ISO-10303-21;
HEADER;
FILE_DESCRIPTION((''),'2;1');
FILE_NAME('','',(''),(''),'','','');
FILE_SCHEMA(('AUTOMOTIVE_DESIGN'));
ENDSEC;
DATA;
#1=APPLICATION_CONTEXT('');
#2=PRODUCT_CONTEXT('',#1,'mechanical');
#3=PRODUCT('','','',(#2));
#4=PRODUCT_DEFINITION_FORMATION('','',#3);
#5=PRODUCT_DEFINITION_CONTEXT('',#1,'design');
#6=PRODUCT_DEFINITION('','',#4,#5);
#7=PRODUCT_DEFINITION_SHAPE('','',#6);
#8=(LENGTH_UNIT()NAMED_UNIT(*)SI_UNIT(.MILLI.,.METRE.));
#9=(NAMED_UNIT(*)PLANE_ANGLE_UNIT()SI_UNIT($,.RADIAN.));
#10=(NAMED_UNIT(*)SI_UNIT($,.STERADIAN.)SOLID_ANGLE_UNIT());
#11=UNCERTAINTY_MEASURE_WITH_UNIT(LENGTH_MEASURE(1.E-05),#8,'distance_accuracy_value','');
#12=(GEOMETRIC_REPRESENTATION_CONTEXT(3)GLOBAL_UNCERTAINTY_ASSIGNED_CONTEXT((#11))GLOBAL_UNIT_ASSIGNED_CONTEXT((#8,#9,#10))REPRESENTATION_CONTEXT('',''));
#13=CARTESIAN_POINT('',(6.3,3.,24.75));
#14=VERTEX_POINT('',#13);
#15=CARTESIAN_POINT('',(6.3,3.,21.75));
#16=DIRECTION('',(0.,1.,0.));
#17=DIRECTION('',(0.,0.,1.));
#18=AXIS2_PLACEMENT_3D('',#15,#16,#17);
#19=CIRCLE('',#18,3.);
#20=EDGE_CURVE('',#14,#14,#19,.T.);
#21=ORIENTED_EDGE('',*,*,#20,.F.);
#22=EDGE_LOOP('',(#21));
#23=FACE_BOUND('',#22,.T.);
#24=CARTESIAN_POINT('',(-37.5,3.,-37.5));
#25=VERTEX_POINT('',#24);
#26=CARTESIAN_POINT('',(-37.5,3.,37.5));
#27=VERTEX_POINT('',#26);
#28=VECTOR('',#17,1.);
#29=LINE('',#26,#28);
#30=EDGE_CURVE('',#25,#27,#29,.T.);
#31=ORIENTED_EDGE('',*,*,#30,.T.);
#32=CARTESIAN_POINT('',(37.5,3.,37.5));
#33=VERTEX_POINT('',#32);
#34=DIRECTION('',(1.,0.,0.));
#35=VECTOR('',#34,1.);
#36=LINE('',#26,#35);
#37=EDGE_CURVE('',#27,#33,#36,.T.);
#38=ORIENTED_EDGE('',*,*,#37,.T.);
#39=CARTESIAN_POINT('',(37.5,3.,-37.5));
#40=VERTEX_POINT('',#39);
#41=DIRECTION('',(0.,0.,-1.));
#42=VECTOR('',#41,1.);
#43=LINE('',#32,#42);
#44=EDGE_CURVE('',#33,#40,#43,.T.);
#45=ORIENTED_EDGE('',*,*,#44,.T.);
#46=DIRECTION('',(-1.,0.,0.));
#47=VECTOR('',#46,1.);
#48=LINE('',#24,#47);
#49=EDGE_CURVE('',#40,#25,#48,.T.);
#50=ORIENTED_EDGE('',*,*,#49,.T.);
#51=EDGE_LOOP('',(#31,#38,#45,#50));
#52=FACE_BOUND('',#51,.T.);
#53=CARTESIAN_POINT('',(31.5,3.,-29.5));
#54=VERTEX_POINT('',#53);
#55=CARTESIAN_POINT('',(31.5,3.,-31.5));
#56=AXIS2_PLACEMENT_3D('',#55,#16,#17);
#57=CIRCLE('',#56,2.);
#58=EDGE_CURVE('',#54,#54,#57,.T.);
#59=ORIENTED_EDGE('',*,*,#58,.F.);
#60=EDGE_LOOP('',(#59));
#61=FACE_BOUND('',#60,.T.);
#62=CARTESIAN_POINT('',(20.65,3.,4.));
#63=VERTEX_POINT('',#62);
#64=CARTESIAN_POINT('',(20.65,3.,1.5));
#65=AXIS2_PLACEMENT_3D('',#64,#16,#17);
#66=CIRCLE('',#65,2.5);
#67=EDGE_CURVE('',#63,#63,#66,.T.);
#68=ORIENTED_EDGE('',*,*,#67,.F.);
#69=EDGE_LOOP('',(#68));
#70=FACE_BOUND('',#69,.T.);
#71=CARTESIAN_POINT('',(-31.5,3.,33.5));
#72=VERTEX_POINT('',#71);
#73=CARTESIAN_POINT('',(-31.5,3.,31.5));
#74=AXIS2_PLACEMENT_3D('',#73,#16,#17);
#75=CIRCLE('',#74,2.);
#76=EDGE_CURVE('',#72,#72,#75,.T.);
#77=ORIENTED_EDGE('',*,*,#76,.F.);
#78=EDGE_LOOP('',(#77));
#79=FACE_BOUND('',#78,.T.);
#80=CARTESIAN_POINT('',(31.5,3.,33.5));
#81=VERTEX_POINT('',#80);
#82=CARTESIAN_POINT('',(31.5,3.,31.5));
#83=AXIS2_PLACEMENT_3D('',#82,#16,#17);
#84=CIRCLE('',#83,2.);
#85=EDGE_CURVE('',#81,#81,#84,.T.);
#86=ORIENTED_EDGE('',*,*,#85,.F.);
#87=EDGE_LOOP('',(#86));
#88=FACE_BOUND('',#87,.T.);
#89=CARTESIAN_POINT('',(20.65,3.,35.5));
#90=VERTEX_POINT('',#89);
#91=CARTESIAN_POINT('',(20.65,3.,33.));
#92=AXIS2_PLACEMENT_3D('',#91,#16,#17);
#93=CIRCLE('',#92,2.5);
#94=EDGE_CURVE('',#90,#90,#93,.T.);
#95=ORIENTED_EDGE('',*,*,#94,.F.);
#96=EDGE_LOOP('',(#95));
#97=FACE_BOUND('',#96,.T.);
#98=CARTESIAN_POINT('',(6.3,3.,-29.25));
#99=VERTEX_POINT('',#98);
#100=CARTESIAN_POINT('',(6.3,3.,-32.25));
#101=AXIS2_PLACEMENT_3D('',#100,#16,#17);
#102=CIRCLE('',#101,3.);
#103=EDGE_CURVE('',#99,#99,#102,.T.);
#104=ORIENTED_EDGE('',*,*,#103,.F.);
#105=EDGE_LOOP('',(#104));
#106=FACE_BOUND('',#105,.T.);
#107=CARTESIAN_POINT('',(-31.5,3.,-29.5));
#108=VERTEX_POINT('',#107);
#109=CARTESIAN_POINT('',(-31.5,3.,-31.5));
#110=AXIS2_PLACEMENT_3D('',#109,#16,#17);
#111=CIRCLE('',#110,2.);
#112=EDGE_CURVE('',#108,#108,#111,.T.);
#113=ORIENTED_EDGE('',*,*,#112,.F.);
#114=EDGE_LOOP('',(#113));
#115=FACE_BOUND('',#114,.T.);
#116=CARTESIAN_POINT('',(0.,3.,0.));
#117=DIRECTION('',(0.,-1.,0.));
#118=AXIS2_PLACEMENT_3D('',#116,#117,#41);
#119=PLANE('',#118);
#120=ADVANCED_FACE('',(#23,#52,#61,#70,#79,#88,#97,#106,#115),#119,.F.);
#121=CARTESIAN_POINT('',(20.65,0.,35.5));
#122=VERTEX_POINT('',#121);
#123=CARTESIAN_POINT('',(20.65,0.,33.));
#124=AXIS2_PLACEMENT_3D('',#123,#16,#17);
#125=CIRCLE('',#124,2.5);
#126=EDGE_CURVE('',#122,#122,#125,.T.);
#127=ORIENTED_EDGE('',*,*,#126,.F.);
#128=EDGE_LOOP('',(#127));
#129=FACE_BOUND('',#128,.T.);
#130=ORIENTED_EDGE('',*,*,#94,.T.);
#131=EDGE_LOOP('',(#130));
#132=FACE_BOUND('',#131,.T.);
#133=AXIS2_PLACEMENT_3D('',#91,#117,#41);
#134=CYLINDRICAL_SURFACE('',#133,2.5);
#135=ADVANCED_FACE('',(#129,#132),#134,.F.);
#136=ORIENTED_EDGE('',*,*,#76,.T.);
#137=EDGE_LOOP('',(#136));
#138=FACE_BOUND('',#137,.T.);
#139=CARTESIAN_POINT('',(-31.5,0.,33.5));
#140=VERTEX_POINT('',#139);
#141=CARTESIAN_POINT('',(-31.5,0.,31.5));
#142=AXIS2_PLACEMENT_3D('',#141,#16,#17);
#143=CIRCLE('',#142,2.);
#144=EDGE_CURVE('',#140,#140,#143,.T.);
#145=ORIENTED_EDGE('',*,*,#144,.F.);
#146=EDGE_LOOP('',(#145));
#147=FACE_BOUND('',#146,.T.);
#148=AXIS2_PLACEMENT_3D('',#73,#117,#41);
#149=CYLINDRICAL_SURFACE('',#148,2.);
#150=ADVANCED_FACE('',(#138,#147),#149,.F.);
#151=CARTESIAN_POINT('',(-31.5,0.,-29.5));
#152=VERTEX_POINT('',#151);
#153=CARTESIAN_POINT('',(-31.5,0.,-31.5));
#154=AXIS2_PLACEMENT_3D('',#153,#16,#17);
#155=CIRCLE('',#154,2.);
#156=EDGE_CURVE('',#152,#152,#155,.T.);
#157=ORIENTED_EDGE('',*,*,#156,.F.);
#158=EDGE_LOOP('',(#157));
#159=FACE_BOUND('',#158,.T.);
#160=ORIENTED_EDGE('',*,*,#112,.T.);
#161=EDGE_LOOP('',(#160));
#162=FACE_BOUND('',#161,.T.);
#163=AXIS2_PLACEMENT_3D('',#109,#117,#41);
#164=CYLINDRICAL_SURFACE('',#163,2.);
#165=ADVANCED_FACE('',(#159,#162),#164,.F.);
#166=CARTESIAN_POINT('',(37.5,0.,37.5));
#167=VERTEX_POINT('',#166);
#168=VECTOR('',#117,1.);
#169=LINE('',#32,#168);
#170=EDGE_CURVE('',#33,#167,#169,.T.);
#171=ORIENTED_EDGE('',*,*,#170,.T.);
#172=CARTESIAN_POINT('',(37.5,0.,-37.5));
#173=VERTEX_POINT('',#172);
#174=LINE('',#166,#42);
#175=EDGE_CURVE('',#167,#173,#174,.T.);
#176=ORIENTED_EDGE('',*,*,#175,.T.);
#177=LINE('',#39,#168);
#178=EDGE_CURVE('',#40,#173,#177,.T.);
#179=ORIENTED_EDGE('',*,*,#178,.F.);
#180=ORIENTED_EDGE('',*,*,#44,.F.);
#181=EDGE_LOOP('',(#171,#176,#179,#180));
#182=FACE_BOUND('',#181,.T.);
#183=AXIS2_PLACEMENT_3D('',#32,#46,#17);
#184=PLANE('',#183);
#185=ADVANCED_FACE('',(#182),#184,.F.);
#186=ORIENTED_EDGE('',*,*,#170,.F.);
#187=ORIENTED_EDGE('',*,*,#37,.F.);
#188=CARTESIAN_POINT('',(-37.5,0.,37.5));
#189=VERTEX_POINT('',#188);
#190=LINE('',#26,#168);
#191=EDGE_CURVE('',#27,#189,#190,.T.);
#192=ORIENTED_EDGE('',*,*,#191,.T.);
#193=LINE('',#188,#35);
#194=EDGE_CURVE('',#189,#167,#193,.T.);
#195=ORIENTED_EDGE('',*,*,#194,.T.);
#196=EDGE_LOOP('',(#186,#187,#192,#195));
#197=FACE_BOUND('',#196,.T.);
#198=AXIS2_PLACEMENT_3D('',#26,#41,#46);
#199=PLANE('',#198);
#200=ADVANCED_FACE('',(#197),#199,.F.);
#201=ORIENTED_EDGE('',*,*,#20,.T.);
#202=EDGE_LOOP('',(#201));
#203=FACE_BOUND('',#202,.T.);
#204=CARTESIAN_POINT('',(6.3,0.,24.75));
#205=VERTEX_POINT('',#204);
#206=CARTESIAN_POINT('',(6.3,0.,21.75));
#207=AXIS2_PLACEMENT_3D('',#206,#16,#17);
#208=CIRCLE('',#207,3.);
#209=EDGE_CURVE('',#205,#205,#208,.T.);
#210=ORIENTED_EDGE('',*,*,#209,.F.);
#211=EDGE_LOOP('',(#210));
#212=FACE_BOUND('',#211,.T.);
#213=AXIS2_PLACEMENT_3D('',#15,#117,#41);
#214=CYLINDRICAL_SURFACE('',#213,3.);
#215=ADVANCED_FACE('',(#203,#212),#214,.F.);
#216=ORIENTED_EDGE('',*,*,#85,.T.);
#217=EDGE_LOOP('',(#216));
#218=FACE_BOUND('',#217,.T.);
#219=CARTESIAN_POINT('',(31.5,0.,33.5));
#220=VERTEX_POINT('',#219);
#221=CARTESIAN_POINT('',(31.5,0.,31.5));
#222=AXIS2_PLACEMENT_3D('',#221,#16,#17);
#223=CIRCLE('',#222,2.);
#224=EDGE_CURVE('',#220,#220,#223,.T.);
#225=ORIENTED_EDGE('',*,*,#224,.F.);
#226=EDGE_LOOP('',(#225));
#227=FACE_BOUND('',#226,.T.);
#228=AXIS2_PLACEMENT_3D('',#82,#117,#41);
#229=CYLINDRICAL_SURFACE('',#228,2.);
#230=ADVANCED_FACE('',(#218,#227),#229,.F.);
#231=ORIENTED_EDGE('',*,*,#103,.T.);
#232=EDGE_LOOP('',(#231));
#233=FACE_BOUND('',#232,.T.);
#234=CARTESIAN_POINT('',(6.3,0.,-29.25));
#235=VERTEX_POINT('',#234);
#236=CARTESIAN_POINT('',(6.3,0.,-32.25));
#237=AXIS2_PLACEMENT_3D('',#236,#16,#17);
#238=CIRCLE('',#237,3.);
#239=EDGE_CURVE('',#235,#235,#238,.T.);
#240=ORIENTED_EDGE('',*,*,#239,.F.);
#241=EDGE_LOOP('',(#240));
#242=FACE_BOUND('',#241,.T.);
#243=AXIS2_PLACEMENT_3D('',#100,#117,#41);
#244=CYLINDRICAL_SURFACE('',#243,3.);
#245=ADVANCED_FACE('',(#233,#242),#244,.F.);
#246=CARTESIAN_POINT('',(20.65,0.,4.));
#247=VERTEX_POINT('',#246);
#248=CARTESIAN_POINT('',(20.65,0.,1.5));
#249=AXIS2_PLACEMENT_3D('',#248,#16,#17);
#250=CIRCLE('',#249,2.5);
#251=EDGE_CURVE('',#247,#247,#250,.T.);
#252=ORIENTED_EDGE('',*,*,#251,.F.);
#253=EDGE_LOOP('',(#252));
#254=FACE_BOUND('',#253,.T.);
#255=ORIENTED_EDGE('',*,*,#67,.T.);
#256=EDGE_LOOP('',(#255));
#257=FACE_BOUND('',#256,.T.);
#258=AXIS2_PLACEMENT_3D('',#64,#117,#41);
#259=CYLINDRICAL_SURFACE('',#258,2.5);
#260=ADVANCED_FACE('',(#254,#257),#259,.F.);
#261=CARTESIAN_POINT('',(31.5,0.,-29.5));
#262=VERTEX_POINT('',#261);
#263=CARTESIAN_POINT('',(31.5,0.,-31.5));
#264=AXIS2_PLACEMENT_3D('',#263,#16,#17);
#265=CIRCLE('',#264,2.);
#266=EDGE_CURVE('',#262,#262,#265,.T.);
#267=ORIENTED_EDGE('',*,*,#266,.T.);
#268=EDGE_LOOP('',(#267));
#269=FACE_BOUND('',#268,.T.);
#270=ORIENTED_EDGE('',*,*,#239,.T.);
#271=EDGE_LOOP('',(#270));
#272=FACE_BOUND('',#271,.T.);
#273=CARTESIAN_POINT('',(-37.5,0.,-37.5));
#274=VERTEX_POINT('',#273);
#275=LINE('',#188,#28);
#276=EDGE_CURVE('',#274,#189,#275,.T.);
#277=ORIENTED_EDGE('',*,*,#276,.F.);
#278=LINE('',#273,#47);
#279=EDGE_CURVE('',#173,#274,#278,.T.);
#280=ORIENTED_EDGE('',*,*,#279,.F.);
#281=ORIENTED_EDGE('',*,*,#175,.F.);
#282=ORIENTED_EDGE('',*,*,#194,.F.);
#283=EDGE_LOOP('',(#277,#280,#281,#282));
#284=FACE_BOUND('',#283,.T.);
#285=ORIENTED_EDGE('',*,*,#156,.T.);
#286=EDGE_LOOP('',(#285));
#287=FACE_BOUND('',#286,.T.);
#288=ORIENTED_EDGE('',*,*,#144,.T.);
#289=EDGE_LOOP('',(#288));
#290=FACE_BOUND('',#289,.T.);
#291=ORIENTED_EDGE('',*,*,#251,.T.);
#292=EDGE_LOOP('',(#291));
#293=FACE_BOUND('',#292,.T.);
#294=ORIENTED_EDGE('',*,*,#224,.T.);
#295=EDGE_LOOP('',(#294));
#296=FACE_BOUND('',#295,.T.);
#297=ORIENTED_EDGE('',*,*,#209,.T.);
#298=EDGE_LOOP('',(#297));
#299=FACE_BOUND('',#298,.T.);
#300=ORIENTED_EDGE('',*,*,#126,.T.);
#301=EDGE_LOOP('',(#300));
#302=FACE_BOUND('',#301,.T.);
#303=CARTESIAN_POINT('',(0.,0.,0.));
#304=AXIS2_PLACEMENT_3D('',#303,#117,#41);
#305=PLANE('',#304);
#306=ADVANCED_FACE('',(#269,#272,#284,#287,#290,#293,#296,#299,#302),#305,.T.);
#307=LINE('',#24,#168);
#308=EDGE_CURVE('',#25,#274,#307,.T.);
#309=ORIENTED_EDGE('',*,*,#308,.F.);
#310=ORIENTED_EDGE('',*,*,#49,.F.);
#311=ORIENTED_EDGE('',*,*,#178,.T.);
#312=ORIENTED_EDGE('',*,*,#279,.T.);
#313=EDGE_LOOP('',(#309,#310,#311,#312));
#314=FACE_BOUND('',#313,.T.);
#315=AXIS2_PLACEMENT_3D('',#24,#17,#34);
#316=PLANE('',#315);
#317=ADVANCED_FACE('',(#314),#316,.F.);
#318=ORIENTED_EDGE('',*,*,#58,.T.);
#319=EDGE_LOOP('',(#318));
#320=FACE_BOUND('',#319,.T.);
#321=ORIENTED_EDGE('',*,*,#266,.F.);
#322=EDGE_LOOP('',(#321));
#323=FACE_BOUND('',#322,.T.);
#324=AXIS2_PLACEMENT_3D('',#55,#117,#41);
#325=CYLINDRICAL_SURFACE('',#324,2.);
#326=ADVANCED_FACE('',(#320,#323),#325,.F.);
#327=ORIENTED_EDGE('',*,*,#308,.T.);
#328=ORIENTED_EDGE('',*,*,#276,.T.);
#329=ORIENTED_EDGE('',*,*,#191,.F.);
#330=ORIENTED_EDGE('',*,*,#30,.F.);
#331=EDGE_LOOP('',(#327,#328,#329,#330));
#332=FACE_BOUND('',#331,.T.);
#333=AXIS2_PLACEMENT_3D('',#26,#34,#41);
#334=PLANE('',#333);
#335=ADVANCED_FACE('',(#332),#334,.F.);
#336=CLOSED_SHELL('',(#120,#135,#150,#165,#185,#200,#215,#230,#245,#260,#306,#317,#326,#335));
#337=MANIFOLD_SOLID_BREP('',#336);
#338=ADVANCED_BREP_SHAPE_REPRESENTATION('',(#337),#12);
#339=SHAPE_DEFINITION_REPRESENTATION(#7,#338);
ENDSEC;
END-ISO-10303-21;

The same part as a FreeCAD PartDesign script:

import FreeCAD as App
import Part
import Sketcher
from FreeCAD import Vector

doc = App.newDocument("Part")
body = doc.addObject("PartDesign::Body", "Body")

sketch1 = doc.addObject("Sketcher::SketchObject", "Sketch")
body.addObject(sketch1)
sketch1.AttachmentSupport = (doc.XZ_Plane, [""])
sketch1.MapMode = "FlatFace"
sketch1.addGeometry(Part.LineSegment(Vector(-37.5, -37.5, 0), Vector(-37.5, 37.5, 0)), False)
sketch1.addGeometry(Part.LineSegment(Vector(-37.5, 37.5, 0), Vector(37.5, 37.5, 0)), False)
sketch1.addGeometry(Part.LineSegment(Vector(37.5, 37.5, 0), Vector(37.5, -37.5, 0)), False)
sketch1.addGeometry(Part.LineSegment(Vector(37.5, -37.5, 0), Vector(-37.5, -37.5, 0)), False)
sketch1.addGeometry(Part.Circle(Vector(-31.5, 31.5, 0), Vector(0, 0, 1), 2), False)
sketch1.addGeometry(Part.Circle(Vector(6.3, 21.75, 0), Vector(0, 0, 1), 3), False)
sketch1.addGeometry(Part.Circle(Vector(20.65, 33, 0), Vector(0, 0, 1), 2.5), False)
sketch1.addGeometry(Part.Circle(Vector(31.5, 31.5, 0), Vector(0, 0, 1), 2), False)
sketch1.addGeometry(Part.Circle(Vector(20.65, 1.5, 0), Vector(0, 0, 1), 2.5), False)
sketch1.addGeometry(Part.Circle(Vector(-31.5, -31.5, 0), Vector(0, 0, 1), 2), False)
sketch1.addGeometry(Part.Circle(Vector(6.3, -32.25, 0), Vector(0, 0, 1), 3), False)
sketch1.addGeometry(Part.Circle(Vector(31.5, -31.5, 0), Vector(0, 0, 1), 2), False)
sketch1.addConstraint(Sketcher.Constraint("Coincident", 0, 2, 1, 1))
sketch1.addConstraint(Sketcher.Constraint("Coincident", 1, 2, 2, 1))
sketch1.addConstraint(Sketcher.Constraint("Coincident", 2, 2, 3, 1))
sketch1.addConstraint(Sketcher.Constraint("Coincident", 3, 2, 0, 1))
sketch1.addConstraint(Sketcher.Constraint("Vertical", 0))
sketch1.addConstraint(Sketcher.Constraint("Horizontal", 1))
sketch1.addConstraint(Sketcher.Constraint("Vertical", 2))
sketch1.addConstraint(Sketcher.Constraint("Horizontal", 3))
sketch1.addConstraint(Sketcher.Constraint("Equal", 4, 7))
sketch1.addConstraint(Sketcher.Constraint("Equal", 6, 8))
sketch1.addConstraint(Sketcher.Constraint("Equal", 7, 9))
sketch1.addConstraint(Sketcher.Constraint("Equal", 5, 10))
sketch1.addConstraint(Sketcher.Constraint("Equal", 9, 11))
sketch1.addConstraint(Sketcher.Constraint("Symmetric", 7, 3, 9, 3, -1, 1))
sketch1.addConstraint(Sketcher.Constraint("Symmetric", 4, 3, 11, 3, -1, 1))
sketch1.addConstraint(Sketcher.Constraint("Symmetric", 0, 2, 2, 2, -1, 1))
sketch1.addConstraint(Sketcher.Constraint("Symmetric", 4, 3, 7, 3, -2))
sketch1.addConstraint(Sketcher.Constraint("Vertical", 6, 3, 8, 3))
sketch1.addConstraint(Sketcher.Constraint("Vertical", 5, 3, 10, 3))
sketch1.addConstraint(Sketcher.Constraint("Equal", 3, 0))
sketch1.addConstraint(Sketcher.Constraint("Diameter", 4, 4.0))
sketch1.addConstraint(Sketcher.Constraint("Diameter", 5, 6.0))
sketch1.addConstraint(Sketcher.Constraint("Diameter", 6, 5.0))
sketch1.addConstraint(Sketcher.Constraint("DistanceX", 1, 1, 1, 2, 75.0))
sketch1.addConstraint(Sketcher.Constraint("DistanceY", -1, 1, 6, 3, 33.0))
sketch1.addConstraint(Sketcher.Constraint("DistanceX", 4, 3, 7, 3, 63.0))
sketch1.addConstraint(Sketcher.Constraint("DistanceY", 8, 3, 7, 3, 30.0))
sketch1.addConstraint(Sketcher.Constraint("DistanceY", 9, 3, 8, 3, 33.0))
sketch1.addConstraint(Sketcher.Constraint("DistanceY", 10, 3, 5, 3, 54.0))
sketch1.addConstraint(Sketcher.Constraint("DistanceX", -1, 1, 5, 3, 6.3))
sketch1.addConstraint(Sketcher.Constraint("DistanceY", -1, 1, 5, 3, 21.75))
sketch1.addConstraint(Sketcher.Constraint("DistanceX", -1, 1, 6, 3, 20.65))
pad1 = doc.addObject("PartDesign::Pad", "Pad")
body.addObject(pad1)
pad1.Profile = sketch1
pad1.Length = 3
pad1.Reversed = True

doc.recompute()
